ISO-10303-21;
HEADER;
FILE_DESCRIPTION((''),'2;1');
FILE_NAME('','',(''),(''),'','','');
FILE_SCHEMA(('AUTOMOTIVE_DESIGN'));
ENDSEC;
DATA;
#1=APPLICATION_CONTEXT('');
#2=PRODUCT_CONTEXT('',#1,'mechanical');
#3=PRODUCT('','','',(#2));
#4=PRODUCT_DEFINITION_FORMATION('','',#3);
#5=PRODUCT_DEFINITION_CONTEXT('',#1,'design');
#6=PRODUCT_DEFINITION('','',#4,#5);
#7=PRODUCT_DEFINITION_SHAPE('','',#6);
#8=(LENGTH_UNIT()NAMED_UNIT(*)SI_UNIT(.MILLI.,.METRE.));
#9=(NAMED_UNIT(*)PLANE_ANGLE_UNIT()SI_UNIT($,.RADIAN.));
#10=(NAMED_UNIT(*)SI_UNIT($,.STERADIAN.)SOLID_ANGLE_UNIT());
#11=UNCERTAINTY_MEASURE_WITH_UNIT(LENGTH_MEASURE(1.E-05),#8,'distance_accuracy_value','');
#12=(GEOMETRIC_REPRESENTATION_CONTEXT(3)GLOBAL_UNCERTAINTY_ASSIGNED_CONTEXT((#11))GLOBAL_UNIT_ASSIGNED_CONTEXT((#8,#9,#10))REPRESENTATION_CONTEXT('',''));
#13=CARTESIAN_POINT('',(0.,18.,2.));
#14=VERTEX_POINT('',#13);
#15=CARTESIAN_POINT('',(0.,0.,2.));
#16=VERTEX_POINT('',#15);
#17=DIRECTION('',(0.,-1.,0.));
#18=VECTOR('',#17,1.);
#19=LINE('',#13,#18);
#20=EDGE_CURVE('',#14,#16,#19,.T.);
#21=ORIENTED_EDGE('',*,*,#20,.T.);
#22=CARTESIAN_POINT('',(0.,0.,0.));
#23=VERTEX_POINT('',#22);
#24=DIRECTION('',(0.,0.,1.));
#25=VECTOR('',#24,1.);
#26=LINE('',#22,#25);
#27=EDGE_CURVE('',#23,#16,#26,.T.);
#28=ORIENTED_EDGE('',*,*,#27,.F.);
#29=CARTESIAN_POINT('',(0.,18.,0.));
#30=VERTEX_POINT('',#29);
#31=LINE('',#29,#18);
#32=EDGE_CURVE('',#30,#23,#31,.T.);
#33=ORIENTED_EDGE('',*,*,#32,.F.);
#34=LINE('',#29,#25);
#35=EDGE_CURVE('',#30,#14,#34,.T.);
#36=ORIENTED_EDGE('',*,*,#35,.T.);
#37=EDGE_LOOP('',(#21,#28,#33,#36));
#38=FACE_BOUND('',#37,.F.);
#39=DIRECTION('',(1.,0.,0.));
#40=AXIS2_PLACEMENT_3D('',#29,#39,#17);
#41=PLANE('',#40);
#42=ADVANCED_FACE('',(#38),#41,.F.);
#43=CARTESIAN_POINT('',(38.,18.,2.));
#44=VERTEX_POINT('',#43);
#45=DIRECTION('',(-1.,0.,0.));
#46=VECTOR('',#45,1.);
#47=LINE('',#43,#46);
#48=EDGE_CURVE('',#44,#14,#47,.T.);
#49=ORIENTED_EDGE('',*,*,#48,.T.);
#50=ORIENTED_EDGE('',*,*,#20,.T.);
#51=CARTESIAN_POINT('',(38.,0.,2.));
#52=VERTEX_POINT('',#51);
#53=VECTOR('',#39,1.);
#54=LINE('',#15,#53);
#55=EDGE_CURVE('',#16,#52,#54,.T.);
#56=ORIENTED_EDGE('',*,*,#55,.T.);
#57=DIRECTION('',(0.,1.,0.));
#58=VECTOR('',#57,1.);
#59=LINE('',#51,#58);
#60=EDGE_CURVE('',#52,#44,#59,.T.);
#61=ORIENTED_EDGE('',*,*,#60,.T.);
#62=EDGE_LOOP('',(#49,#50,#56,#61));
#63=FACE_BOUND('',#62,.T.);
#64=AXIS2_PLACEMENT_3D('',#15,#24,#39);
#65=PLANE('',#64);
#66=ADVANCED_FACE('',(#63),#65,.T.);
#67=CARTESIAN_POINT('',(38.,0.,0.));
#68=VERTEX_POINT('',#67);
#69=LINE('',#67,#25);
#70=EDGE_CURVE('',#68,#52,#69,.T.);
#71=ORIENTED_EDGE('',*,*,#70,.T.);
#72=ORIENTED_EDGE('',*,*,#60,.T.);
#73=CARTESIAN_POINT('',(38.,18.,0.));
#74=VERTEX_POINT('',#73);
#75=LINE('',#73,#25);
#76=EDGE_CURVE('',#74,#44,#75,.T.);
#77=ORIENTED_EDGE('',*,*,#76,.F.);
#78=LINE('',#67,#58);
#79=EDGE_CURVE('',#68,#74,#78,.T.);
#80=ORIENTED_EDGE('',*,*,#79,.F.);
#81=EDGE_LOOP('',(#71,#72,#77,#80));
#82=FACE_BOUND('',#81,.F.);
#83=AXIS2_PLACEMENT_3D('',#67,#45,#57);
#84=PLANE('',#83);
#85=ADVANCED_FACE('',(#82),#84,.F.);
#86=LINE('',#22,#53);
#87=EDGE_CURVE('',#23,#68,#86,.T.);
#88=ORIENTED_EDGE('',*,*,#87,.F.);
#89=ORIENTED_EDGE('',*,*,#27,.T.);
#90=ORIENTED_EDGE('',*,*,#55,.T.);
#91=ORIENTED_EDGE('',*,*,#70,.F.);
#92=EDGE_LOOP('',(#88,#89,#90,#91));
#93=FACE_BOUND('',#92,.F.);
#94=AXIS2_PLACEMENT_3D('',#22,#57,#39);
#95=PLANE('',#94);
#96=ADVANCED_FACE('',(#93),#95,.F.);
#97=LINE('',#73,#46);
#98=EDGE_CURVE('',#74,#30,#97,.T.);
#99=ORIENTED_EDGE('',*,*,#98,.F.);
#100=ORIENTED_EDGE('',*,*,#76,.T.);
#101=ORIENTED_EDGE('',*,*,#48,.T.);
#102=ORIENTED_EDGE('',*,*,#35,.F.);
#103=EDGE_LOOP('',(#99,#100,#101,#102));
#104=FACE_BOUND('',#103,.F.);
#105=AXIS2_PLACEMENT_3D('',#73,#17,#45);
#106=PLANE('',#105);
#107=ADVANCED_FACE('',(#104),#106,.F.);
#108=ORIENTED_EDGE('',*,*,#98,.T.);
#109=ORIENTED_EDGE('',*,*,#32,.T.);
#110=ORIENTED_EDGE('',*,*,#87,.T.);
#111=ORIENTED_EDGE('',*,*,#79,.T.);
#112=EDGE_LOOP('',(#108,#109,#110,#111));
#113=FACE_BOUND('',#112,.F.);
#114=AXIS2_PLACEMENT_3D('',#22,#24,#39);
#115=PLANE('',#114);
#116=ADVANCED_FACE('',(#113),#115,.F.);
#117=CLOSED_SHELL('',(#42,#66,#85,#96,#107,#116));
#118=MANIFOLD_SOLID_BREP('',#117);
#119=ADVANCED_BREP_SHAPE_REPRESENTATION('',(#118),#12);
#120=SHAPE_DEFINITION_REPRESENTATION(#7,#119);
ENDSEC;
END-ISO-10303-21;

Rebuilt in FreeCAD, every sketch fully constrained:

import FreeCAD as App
import Part
import Sketcher
from FreeCAD import Vector

doc = App.newDocument("Part")
body = doc.addObject("PartDesign::Body", "Body")

sketch1 = body.newObject("Sketcher::SketchObject", "Sketch")
sketch1.AttachmentSupport = (doc.getObject("XY_Plane"), [""])
sketch1.MapMode = "FlatFace"
sketch1.addGeometry(Part.LineSegment(Vector(0, 18, 0), Vector(0, 0, 0)), False)
sketch1.addGeometry(Part.LineSegment(Vector(0, 0, 0), Vector(38, 0, 0)), False)
sketch1.addGeometry(Part.LineSegment(Vector(38, 0, 0), Vector(38, 18, 0)), False)
sketch1.addGeometry(Part.LineSegment(Vector(38, 18, 0), Vector(0, 18, 0)), False)
sketch1.addConstraint(Sketcher.Constraint("Coincident", 0, 2, 1, 1))
sketch1.addConstraint(Sketcher.Constraint("Coincident", 1, 2, 2, 1))
sketch1.addConstraint(Sketcher.Constraint("Coincident", 2, 2, 3, 1))
sketch1.addConstraint(Sketcher.Constraint("Coincident", 3, 2, 0, 1))
sketch1.addConstraint(Sketcher.Constraint("Vertical", 0))
sketch1.addConstraint(Sketcher.Constraint("Horizontal", 1))
sketch1.addConstraint(Sketcher.Constraint("Vertical", 2))
sketch1.addConstraint(Sketcher.Constraint("Horizontal", 3))
sketch1.addConstraint(Sketcher.Constraint("Coincident", 0, 2, -1, 1))
sketch1.addConstraint(Sketcher.Constraint("DistanceX", 1, 1, 1, 2, 38.0))
sketch1.addConstraint(Sketcher.Constraint("DistanceY", 0, 2, 0, 1, 18.0))
pad1 = body.newObject("PartDesign::Pad", "Pad")
pad1.Profile = sketch1
pad1.Length = 2

doc.recompute()
